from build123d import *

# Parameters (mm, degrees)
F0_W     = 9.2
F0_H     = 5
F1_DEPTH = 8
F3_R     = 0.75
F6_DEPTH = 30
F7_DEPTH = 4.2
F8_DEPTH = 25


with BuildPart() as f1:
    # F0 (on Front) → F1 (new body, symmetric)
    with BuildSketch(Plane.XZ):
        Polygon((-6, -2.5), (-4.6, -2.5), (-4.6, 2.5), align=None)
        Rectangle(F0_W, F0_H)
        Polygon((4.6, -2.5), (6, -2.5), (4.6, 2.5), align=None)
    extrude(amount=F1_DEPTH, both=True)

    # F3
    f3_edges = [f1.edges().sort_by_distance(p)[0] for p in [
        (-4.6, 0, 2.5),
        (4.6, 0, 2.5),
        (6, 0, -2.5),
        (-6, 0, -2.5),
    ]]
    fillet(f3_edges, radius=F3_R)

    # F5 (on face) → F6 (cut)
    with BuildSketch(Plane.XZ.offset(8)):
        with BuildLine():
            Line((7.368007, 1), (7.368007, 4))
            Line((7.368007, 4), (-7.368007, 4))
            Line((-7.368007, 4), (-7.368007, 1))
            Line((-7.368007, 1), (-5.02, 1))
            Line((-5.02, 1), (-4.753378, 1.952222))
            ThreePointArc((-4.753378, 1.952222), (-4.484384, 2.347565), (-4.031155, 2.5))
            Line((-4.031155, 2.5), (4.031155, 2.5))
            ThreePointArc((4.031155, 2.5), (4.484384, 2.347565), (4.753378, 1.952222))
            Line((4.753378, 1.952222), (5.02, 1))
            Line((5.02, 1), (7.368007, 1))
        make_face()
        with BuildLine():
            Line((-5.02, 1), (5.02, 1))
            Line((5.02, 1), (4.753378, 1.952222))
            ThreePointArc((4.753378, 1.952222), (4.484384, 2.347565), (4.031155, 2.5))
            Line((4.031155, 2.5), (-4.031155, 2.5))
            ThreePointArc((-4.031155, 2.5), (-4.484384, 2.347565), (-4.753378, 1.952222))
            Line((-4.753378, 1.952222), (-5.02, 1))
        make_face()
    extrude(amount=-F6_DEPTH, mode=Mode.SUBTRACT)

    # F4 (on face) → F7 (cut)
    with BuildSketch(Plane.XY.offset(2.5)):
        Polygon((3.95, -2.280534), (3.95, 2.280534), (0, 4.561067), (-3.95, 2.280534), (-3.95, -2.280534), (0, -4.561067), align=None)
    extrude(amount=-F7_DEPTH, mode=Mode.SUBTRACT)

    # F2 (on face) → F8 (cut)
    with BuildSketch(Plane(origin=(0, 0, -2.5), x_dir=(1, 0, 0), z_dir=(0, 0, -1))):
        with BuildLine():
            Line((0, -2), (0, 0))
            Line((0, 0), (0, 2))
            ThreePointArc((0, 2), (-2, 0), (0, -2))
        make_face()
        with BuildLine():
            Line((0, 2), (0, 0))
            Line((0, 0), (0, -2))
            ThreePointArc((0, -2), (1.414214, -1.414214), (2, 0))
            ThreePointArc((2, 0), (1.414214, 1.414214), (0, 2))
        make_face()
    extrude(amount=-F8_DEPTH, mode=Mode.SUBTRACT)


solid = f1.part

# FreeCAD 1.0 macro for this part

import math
import FreeCAD as App
import Part
import Sketcher
Q = App.Units.Quantity


def edges_at(feature, points):
    """Names of the edges that pass closest to the given points."""
    edges = feature.Shape.Edges
    near = lambda p: min(range(len(edges)), key=lambda i: edges[i].distToShape(Part.Vertex(*p))[0])
    return sorted({f"Edge{near(p) + 1}" for p in points})

doc = App.newDocument("Part")
body = doc.addObject("PartDesign::Body", "Body")

# Sketch on XZ plane
sketch1 = body.newObject("Sketcher::SketchObject", "Sketch")
sketch1.AttachmentSupport = (doc.getObject("XZ_Plane"), [""])
sketch1.MapMode = "FlatFace"
sketch1.addGeometry(Part.LineSegment(App.Vector(-6, -2, 0), App.Vector(6, -2, 0)), False)
sketch1.addGeometry(Part.LineSegment(App.Vector(6, -2, 0), App.Vector(5, 2, 0)), False)
sketch1.addGeometry(Part.LineSegment(App.Vector(5, 2, 0), App.Vector(-5, 2, 0)), False)
sketch1.addGeometry(Part.LineSegment(App.Vector(-5, 2, 0), App.Vector(-6, -2, 0)), False)
sketch1.addConstraint(Sketcher.Constraint("Coincident", 0, 2, 1, 1))
sketch1.addConstraint(Sketcher.Constraint("Coincident", 1, 2, 2, 1))
sketch1.addConstraint(Sketcher.Constraint("Coincident", 2, 2, 3, 1))
sketch1.addConstraint(Sketcher.Constraint("Coincident", 3, 2, 0, 1))
sketch1.addConstraint(Sketcher.Constraint("Horizontal", 0))
sketch1.addConstraint(Sketcher.Constraint("Horizontal", 2))
sketch1.addConstraint(Sketcher.Constraint("Equal", 1, 3))
sketch1.addConstraint(Sketcher.Constraint("DistanceX", 0, 1, 0, 2, 12.0))
sketch1.addConstraint(Sketcher.Constraint("DistanceX", 2, 2, 2, 1, 9.2))
sketch1.addConstraint(Sketcher.Constraint("DistanceX", -1, 1, 0, 2, 6.0))
sketch1.addConstraint(Sketcher.Constraint("DistanceY", 0, 2, 1, 2, 5.0))
sketch1.addConstraint(Sketcher.Constraint("DistanceY", 0, 2, -1, 1, 2.5))
pad1 = body.newObject("PartDesign::Pad", "Pad")
pad1.Profile = sketch1
pad1.Length = 16
pad1.Midplane = True
doc.recompute()

fillet = body.newObject("PartDesign::Fillet", "Fillet")
fillet.Base = (pad1, edges_at(pad1, [
    (-4.6, 0, 2.5),
    (4.6, 0, 2.5),
    (6, 0, -2.5),
    (-6, 0, -2.5),
]))
fillet.Radius = 0.75

# Sketch on XZ plane
sketch2 = body.newObject("Sketcher::SketchObject", "Sketch001")
sketch2.AttachmentSupport = (doc.getObject("XZ_Plane"), [""])
sketch2.MapMode = "FlatFace"
sketch2.AttachmentOffset = App.Placement(App.Vector(0, 0, 8), App.Rotation())
sketch2.addGeometry(Part.LineSegment(App.Vector(7.4, 1, 0), App.Vector(7.4, 4, 0)), False)
sketch2.addGeometry(Part.LineSegment(App.Vector(7.4, 4, 0), App.Vector(-7.4, 4, 0)), False)
sketch2.addGeometry(Part.LineSegment(App.Vector(-7.4, 4, 0), App.Vector(-7.4, 1, 0)), False)
sketch2.addGeometry(Part.LineSegment(App.Vector(-7.4, 1, 0), App.Vector(7.4, 1, 0)), False)
sketch2.addConstraint(Sketcher.Constraint("Coincident", 0, 2, 1, 1))
sketch2.addConstraint(Sketcher.Constraint("Coincident", 1, 2, 2, 1))
sketch2.addConstraint(Sketcher.Constraint("Coincident", 2, 2, 3, 1))
sketch2.addConstraint(Sketcher.Constraint("Coincident", 3, 2, 0, 1))
sketch2.addConstraint(Sketcher.Constraint("Vertical", 0))
sketch2.addConstraint(Sketcher.Constraint("Horizontal", 1))
sketch2.addConstraint(Sketcher.Constraint("Vertical", 2))
sketch2.addConstraint(Sketcher.Constraint("Horizontal", 3))
sketch2.addConstraint(Sketcher.Constraint("DistanceY", 0, 1, 0, 2, 3.0))
sketch2.addConstraint(Sketcher.Constraint("DistanceY", -1, 1, 0, 2, 4.0))
sketch2.addConstraint(Sketcher.Constraint("DistanceX", 1, 2, 1, 1, 14.736014))
sketch2.addConstraint(Sketcher.Constraint("DistanceX", -1, 1, 0, 2, 7.368007))
pocket1 = body.newObject("PartDesign::Pocket", "Pocket")
pocket1.Profile = sketch2
pocket1.Length = 30

# Sketch on XY plane
sketch3 = body.newObject("Sketcher::SketchObject", "Sketch002")
sketch3.AttachmentSupport = (doc.getObject("XY_Plane"), [""])
sketch3.MapMode = "FlatFace"
sketch3.AttachmentOffset = App.Placement(App.Vector(0, 0, 2.5), App.Rotation())
sketch3.addGeometry(Part.LineSegment(App.Vector(4, -2.3, 0), App.Vector(4, 2.3, 0)), False)
sketch3.addGeometry(Part.LineSegment(App.Vector(4, 2.3, 0), App.Vector(0, 4.6, 0)), False)
sketch3.addGeometry(Part.LineSegment(App.Vector(0, 4.6, 0), App.Vector(-4, 2.3, 0)), False)
sketch3.addGeometry(Part.LineSegment(App.Vector(-4, 2.3, 0), App.Vector(-4, -2.3, 0)), False)
sketch3.addGeometry(Part.LineSegment(App.Vector(-4, -2.3, 0), App.Vector(0, -4.6, 0)), False)
sketch3.addGeometry(Part.LineSegment(App.Vector(0, -4.6, 0), App.Vector(4, -2.3, 0)), False)
sketch3.addConstraint(Sketcher.Constraint("Coincident", 0, 2, 1, 1))
sketch3.addConstraint(Sketcher.Constraint("Coincident", 1, 2, 2, 1))
sketch3.addConstraint(Sketcher.Constraint("Coincident", 2, 2, 3, 1))
sketch3.addConstraint(Sketcher.Constraint("Coincident", 3, 2, 4, 1))
sketch3.addConstraint(Sketcher.Constraint("Coincident", 4, 2, 5, 1))
sketch3.addConstraint(Sketcher.Constraint("Coincident", 5, 2, 0, 1))
sketch3.addConstraint(Sketcher.Constraint("Vertical", 0))
sketch3.addConstraint(Sketcher.Constraint("Vertical", 3))
sketch3.addConstraint(Sketcher.Constraint("Symmetric", 0, 2, 3, 2, -1, 1))
sketch3.addConstraint(Sketcher.Constraint("Symmetric", 1, 2, 4, 2, -1, 1))
sketch3.addConstraint(Sketcher.Constraint("PointOnObject", 1, 2, -2))
sketch3.addConstraint(Sketcher.Constraint("Parallel", 2, 5))
sketch3.addConstraint(Sketcher.Constraint("Horizontal", 0, 2, 2, 2))
sketch3.addConstraint(Sketcher.Constraint("Angle", 1, Q("150.000006 deg")))
sketch3.addConstraint(Sketcher.Constraint("DistanceX", 2, 2, 0, 2, 7.9))
sketch3.addConstraint(Sketcher.Constraint("DistanceY", 3, 2, 1, 2, 6.841601))
pocket2 = body.newObject("PartDesign::Pocket", "Pocket001")
pocket2.Profile = sketch3
pocket2.Length = 4.2

# Sketch on XY plane
sketch4 = body.newObject("Sketcher::SketchObject", "Sketch003")
sketch4.AttachmentSupport = (doc.getObject("XY_Plane"), [""])
sketch4.MapMode = "FlatFace"
sketch4.AttachmentOffset = App.Placement(App.Vector(0, 0, -2.5), App.Rotation())
sketch4.addGeometry(Part.ArcOfCircle(Part.Circle(App.Vector(0, 0, 0), App.Vector(0, 0, 1), 2), math.radians(90), math.radians(270)), False)
sketch4.addGeometry(Part.ArcOfCircle(Part.Circle(App.Vector(0, 0, 0), App.Vector(0, 0, 1), 2), math.radians(0), math.radians(90)), False)
sketch4.addGeometry(Part.ArcOfCircle(Part.Circle(App.Vector(0, 0, 0), App.Vector(0, 0, 1), 2), math.radians(-90), math.radians(0)), False)
sketch4.addConstraint(Sketcher.Constraint("Tangent", 0, 1, 1, 2))
sketch4.addConstraint(Sketcher.Constraint("Tangent", 1, 1, 2, 2))
sketch4.addConstraint(Sketcher.Constraint("Tangent", 2, 1, 0, 2))
sketch4.addConstraint(Sketcher.Constraint("Coincident", 0, 3, -1, 1))
sketch4.addConstraint(Sketcher.Constraint("PointOnObject", 0, 1, -2))
sketch4.addConstraint(Sketcher.Constraint("PointOnObject", 1, 1, -1))
sketch4.addConstraint(Sketcher.Constraint("PointOnObject", 2, 1, -2))
sketch4.addConstraint(Sketcher.Constraint("Radius", 0, 2.0))
pocket3 = body.newObject("PartDesign::Pocket", "Pocket002")
pocket3.Profile = sketch4
pocket3.Length = 25
pocket3.Reversed = True

doc.recompute()
